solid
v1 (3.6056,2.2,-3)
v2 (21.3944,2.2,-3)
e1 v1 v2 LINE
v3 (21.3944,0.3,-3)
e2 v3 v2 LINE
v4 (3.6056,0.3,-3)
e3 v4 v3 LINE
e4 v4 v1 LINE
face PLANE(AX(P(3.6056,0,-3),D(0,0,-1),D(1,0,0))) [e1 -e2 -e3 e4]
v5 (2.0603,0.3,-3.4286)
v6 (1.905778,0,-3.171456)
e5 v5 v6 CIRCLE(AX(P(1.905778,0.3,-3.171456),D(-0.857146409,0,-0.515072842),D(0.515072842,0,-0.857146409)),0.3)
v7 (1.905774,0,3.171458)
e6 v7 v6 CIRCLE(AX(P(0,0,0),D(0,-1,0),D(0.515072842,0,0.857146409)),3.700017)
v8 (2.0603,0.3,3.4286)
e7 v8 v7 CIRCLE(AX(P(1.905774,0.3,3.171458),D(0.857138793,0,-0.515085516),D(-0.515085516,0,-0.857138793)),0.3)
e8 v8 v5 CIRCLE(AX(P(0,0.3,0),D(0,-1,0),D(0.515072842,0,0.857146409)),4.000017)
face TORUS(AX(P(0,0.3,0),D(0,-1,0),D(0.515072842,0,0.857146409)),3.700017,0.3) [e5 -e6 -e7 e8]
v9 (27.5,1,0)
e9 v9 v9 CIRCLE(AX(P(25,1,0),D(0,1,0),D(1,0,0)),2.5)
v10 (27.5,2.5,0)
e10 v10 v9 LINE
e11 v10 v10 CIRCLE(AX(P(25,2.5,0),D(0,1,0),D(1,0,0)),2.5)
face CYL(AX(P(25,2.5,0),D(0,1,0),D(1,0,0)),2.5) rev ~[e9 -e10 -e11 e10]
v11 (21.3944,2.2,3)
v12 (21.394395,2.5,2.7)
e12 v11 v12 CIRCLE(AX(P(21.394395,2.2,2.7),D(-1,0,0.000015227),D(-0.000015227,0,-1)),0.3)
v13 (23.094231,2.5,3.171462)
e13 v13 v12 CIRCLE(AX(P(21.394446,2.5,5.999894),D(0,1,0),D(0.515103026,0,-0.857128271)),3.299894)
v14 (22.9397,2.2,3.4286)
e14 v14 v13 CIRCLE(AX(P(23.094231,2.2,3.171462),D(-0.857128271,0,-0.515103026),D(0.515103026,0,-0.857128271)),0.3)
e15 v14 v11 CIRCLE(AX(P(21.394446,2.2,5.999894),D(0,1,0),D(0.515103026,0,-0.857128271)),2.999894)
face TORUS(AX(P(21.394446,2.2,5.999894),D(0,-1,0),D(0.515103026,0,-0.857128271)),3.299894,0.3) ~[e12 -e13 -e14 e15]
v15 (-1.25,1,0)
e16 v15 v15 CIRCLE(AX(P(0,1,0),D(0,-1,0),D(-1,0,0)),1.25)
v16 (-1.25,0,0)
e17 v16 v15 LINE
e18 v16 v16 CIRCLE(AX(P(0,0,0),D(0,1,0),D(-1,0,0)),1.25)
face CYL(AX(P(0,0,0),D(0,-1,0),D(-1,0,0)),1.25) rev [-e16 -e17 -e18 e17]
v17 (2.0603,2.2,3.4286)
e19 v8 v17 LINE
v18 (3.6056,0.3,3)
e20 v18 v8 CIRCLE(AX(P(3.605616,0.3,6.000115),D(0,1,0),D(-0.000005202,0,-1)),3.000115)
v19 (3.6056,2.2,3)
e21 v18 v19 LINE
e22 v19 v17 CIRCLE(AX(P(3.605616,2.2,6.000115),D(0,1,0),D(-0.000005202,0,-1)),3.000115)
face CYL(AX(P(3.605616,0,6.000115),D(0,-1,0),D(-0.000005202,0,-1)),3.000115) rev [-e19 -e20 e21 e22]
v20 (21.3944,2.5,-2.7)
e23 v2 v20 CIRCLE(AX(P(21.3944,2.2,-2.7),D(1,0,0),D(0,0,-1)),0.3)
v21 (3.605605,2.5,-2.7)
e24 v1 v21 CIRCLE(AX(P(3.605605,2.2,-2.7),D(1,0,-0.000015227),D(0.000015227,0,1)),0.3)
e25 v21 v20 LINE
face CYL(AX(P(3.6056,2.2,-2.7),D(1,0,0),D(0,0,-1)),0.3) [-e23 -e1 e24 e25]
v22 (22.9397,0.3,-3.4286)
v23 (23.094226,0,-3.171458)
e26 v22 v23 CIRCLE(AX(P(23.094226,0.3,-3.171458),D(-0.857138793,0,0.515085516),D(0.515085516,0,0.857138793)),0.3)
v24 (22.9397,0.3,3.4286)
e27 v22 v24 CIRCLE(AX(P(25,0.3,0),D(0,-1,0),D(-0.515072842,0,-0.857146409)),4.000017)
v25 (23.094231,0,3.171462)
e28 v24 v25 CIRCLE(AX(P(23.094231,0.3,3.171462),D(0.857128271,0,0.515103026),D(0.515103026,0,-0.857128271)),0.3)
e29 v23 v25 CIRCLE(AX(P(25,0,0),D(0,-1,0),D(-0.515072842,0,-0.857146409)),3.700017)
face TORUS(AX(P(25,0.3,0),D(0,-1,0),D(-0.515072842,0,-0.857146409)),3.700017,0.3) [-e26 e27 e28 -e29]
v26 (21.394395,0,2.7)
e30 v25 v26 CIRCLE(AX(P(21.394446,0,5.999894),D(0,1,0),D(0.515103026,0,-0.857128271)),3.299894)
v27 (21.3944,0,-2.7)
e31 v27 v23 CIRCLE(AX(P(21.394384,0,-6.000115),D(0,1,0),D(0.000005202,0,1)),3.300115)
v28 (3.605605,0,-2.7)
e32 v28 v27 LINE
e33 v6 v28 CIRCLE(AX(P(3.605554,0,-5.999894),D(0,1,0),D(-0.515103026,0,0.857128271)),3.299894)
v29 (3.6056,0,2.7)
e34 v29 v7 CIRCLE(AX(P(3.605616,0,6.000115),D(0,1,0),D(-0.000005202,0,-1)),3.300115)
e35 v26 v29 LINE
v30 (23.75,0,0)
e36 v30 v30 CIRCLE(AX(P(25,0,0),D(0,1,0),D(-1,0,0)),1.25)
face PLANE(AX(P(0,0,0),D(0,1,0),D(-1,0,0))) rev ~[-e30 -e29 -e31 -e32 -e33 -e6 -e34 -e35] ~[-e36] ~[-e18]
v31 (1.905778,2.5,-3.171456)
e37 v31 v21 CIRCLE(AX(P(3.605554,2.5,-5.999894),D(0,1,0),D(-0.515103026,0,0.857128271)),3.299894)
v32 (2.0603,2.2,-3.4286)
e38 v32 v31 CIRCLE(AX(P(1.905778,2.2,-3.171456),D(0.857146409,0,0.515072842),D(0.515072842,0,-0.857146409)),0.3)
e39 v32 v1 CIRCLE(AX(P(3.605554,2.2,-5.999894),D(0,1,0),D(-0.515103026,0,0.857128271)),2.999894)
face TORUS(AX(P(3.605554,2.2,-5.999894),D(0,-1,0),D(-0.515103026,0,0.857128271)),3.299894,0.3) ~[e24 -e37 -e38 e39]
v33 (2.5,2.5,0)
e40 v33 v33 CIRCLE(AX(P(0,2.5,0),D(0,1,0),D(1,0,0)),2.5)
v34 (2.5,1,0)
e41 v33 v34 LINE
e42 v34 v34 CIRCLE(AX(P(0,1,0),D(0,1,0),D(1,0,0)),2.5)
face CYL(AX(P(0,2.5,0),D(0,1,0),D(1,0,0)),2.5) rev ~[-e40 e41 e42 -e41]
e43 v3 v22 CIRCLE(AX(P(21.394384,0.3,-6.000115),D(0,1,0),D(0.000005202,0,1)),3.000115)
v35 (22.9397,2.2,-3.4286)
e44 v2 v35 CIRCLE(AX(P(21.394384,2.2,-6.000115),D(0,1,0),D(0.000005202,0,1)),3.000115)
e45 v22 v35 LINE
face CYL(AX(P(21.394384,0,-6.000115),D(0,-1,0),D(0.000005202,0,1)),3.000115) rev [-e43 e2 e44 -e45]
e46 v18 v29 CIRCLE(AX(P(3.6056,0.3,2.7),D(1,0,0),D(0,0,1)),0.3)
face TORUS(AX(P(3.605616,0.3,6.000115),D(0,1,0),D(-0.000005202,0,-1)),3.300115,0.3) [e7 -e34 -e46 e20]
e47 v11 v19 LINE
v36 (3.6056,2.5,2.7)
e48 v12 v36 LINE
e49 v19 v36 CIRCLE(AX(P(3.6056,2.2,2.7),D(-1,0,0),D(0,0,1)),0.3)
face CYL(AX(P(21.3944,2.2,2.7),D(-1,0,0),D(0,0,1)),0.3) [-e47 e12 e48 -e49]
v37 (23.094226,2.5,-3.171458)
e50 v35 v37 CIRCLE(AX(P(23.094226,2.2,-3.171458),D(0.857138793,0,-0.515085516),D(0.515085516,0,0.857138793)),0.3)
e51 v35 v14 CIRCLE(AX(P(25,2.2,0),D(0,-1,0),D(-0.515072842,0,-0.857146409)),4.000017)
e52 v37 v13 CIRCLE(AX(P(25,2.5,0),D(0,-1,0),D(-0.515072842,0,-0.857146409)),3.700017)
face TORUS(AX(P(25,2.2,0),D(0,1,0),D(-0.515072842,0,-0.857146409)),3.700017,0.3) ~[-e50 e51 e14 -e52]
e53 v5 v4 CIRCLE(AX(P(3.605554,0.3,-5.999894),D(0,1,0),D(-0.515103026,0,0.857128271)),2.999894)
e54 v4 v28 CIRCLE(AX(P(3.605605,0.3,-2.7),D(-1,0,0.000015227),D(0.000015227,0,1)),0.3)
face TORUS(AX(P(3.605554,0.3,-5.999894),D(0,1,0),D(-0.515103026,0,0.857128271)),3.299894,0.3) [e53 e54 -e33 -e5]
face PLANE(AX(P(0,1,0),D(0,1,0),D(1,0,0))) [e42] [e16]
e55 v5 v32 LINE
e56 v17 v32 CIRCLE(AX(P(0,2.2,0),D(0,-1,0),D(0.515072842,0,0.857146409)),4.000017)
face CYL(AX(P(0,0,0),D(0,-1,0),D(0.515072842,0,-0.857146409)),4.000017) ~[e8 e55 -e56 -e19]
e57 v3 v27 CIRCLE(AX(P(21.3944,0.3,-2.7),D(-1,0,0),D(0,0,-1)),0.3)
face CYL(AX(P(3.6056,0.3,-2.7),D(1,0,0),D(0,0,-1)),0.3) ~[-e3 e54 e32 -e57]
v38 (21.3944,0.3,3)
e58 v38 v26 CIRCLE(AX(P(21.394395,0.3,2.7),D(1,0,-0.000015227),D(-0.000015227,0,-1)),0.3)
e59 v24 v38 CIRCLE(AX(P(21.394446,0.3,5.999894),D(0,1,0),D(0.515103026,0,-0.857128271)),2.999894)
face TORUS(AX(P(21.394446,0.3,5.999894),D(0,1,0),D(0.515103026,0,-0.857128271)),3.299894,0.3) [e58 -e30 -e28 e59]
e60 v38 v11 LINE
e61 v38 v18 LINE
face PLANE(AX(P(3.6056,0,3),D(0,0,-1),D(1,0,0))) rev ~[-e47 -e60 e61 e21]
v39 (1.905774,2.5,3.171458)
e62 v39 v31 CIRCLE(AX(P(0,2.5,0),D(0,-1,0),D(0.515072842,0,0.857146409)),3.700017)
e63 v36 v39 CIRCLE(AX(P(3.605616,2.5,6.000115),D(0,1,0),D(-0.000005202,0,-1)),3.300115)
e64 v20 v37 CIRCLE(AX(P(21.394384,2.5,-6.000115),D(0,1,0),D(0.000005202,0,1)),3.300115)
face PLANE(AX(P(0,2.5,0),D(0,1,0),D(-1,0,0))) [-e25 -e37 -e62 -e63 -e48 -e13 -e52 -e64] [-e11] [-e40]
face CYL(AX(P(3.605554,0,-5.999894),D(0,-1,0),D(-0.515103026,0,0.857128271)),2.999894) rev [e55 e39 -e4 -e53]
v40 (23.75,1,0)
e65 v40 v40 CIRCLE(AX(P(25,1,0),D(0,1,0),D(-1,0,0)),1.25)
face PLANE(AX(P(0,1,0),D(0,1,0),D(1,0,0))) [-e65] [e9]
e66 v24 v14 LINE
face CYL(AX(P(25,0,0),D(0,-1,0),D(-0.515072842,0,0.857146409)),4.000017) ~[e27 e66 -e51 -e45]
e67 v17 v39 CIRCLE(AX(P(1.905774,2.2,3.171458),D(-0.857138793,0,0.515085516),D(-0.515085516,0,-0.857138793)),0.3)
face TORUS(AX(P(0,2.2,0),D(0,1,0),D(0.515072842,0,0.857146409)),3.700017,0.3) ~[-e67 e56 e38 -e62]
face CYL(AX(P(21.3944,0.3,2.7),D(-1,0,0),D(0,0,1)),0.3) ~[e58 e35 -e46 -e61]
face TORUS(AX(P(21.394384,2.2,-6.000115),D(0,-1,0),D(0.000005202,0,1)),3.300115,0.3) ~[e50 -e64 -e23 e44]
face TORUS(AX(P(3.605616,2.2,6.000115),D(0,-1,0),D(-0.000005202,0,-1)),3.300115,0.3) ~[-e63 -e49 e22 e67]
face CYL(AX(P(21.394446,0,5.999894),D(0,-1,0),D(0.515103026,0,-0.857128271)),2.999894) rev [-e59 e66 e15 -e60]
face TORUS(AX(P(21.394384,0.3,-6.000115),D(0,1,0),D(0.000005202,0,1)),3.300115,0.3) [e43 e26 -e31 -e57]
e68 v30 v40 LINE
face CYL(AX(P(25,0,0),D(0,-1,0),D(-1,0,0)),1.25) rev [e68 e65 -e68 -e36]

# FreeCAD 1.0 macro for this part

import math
import FreeCAD as App
import Part
import Sketcher
Q = App.Units.Quantity


def edges_at(feature, points):
    """Names of the edges that pass closest to the given points."""
    edges = feature.Shape.Edges
    near = lambda p: min(range(len(edges)), key=lambda i: edges[i].distToShape(Part.Vertex(*p))[0])
    return sorted({f"Edge{near(p) + 1}" for p in points})

doc = App.newDocument("Part")
body = doc.addObject("PartDesign::Body", "Body")

sketch1 = doc.addObject("Sketcher::SketchObject", "Sketch")
body.addObject(sketch1)
sketch1.AttachmentSupport = (doc.XZ_Plane, [""])
sketch1.MapMode = "FlatFace"
sketch1.addGeometry(Part.ArcOfCircle(Part.Circle(App.Vector(3.6056, -6, 0), App.Vector(0, 0, 1), 3.000008), math.radians(90), math.radians(121.004044)), False)
sketch1.addGeometry(Part.ArcOfCircle(Part.Circle(App.Vector(0, 0, 0), App.Vector(0, 0, 1), 4.000017), math.radians(58.997676), math.radians(301.002324)), False)
sketch1.addGeometry(Part.ArcOfCircle(Part.Circle(App.Vector(3.6056, 6, 0), App.Vector(0, 0, 1), 3), math.radians(-121.004044), math.radians(-90)), False)
sketch1.addGeometry(Part.LineSegment(App.Vector(3.6056, 3, 0), App.Vector(21.3944, 3, 0)), False)
sketch1.addGeometry(Part.ArcOfCircle(Part.Circle(App.Vector(21.3944, 6, 0), App.Vector(0, 0, 1), 3.000008), math.radians(-90), math.radians(-58.995956)), False)
sketch1.addGeometry(Part.ArcOfCircle(Part.Circle(App.Vector(25, 0, 0), App.Vector(0, 0, 1), 4.000017), math.radians(-121.002324), math.radians(121.002324)), False)
sketch1.addGeometry(Part.ArcOfCircle(Part.Circle(App.Vector(21.3944, -6, 0), App.Vector(0, 0, 1), 3), math.radians(58.995956), math.radians(90)), False)
sketch1.addGeometry(Part.LineSegment(App.Vector(21.3944, -3, 0), App.Vector(3.6056, -3, 0)), False)
sketch1.addGeometry(Part.Circle(App.Vector(25, 0, 0), App.Vector(0, 0, 1), 1.25), False)
sketch1.addGeometry(Part.Circle(App.Vector(0, 0, 0), App.Vector(0, 0, 1), 1.25), False)
sketch1.addConstraint(Sketcher.Constraint("Tangent", 0, 2, 1, 2))
sketch1.addConstraint(Sketcher.Constraint("Tangent", 1, 1, 2, 1))
sketch1.addConstraint(Sketcher.Constraint("Tangent", 2, 2, 3, 1))
sketch1.addConstraint(Sketcher.Constraint("Tangent", 3, 2, 4, 1))
sketch1.addConstraint(Sketcher.Constraint("Tangent", 4, 2, 5, 2))
sketch1.addConstraint(Sketcher.Constraint("Tangent", 5, 1, 6, 1))
sketch1.addConstraint(Sketcher.Constraint("Tangent", 6, 2, 7, 1))
sketch1.addConstraint(Sketcher.Constraint("Tangent", 7, 2, 0, 1))
sketch1.addConstraint(Sketcher.Constraint("Horizontal", 3))
sketch1.addConstraint(Sketcher.Constraint("Horizontal", 7))
sketch1.addConstraint(Sketcher.Constraint("Coincident", 1, 3, -1, 1))
sketch1.addConstraint(Sketcher.Constraint("Coincident", 9, 3, -1, 1))
sketch1.addConstraint(Sketcher.Constraint("Coincident", 8, 3, 5, 3))
sketch1.addConstraint(Sketcher.Constraint("Equal", 0, 2))
sketch1.addConstraint(Sketcher.Constraint("Equal", 2, 4))
sketch1.addConstraint(Sketcher.Constraint("Equal", 1, 5))
sketch1.addConstraint(Sketcher.Constraint("Equal", 4, 6))
sketch1.addConstraint(Sketcher.Constraint("Equal", 8, 9))
sketch1.addConstraint(Sketcher.Constraint("Symmetric", 4, 3, 6, 3, -1))
sketch1.addConstraint(Sketcher.Constraint("Radius", 0, Q("3 mm")))
sketch1.addConstraint(Sketcher.Constraint("Radius", 1, Q("4 mm")))
sketch1.addConstraint(Sketcher.Constraint("Diameter", 8, Q("2.5 mm")))
sketch1.addConstraint(Sketcher.Constraint("DistanceY", 0, 3, -1, 1, Q("6 mm")))
sketch1.addConstraint(Sketcher.Constraint("DistanceX", -1, 1, 5, 3, Q("25 mm")))
pad1 = doc.addObject("PartDesign::Pad", "Pad")
body.addObject(pad1)
pad1.Profile = sketch1
pad1.Length = 2.5
pad1.Reversed = True
doc.recompute()

fillet = doc.addObject("PartDesign::Fillet", "Fillet")
body.addObject(fillet)
fillet.Base = (pad1, edges_at(pad1, [
    (22.196, 0, 3.109),
    (29, 0, 0),
    (22.196, 0, -3.109),
    (12.5, 0, -3),
    (2.804, 0, -3.109),
    (-4, 0, 0),
    (2.804, 0, 3.109),
    (12.5, 0, 3),
    (22.196, 2.5, 3.109),
    (29, 2.5, 0),
    (22.196, 2.5, -3.109),
    (12.5, 2.5, -3),
    (2.804, 2.5, -3.109),
    (-4, 2.5, 0),
    (2.804, 2.5, 3.109),
    (12.5, 2.5, 3),
]))
fillet.Radius = 0.3

sketch2 = doc.addObject("Sketcher::SketchObject", "Sketch001")
body.addObject(sketch2)
sketch2.AttachmentSupport = (doc.XZ_Plane, [""])
sketch2.MapMode = "FlatFace"
sketch2.AttachmentOffset = App.Placement(App.Vector(0, 0, -2.5), App.Rotation())
sketch2.addGeometry(Part.Circle(App.Vector(0, 0, 0), App.Vector(0, 0, 1), 2.5), False)
sketch2.addGeometry(Part.Circle(App.Vector(25, 0, 0), App.Vector(0, 0, 1), 2.5), False)
sketch2.addGeometry(Part.Circle(App.Vector(25, 0, 0), App.Vector(0, 0, 1), 1.25), False)
sketch2.addConstraint(Sketcher.Constraint("Coincident", 0, 3, -1, 1))
sketch2.addConstraint(Sketcher.Constraint("Coincident", 2, 3, 1, 3))
sketch2.addConstraint(Sketcher.Constraint("Equal", 0, 1))
sketch2.addConstraint(Sketcher.Constraint("PointOnObject", 1, 3, -1))
sketch2.addConstraint(Sketcher.Constraint("Diameter", 0, Q("5 mm")))
sketch2.addConstraint(Sketcher.Constraint("Diameter", 2, Q("2.5 mm")))
sketch2.addConstraint(Sketcher.Constraint("DistanceX", -1, 1, 1, 3, Q("25 mm")))
pocket1 = doc.addObject("PartDesign::Pocket", "Pocket")
body.addObject(pocket1)
pocket1.Profile = sketch2
pocket1.Length = 1.5
pocket1.Reversed = True

doc.recompute()
